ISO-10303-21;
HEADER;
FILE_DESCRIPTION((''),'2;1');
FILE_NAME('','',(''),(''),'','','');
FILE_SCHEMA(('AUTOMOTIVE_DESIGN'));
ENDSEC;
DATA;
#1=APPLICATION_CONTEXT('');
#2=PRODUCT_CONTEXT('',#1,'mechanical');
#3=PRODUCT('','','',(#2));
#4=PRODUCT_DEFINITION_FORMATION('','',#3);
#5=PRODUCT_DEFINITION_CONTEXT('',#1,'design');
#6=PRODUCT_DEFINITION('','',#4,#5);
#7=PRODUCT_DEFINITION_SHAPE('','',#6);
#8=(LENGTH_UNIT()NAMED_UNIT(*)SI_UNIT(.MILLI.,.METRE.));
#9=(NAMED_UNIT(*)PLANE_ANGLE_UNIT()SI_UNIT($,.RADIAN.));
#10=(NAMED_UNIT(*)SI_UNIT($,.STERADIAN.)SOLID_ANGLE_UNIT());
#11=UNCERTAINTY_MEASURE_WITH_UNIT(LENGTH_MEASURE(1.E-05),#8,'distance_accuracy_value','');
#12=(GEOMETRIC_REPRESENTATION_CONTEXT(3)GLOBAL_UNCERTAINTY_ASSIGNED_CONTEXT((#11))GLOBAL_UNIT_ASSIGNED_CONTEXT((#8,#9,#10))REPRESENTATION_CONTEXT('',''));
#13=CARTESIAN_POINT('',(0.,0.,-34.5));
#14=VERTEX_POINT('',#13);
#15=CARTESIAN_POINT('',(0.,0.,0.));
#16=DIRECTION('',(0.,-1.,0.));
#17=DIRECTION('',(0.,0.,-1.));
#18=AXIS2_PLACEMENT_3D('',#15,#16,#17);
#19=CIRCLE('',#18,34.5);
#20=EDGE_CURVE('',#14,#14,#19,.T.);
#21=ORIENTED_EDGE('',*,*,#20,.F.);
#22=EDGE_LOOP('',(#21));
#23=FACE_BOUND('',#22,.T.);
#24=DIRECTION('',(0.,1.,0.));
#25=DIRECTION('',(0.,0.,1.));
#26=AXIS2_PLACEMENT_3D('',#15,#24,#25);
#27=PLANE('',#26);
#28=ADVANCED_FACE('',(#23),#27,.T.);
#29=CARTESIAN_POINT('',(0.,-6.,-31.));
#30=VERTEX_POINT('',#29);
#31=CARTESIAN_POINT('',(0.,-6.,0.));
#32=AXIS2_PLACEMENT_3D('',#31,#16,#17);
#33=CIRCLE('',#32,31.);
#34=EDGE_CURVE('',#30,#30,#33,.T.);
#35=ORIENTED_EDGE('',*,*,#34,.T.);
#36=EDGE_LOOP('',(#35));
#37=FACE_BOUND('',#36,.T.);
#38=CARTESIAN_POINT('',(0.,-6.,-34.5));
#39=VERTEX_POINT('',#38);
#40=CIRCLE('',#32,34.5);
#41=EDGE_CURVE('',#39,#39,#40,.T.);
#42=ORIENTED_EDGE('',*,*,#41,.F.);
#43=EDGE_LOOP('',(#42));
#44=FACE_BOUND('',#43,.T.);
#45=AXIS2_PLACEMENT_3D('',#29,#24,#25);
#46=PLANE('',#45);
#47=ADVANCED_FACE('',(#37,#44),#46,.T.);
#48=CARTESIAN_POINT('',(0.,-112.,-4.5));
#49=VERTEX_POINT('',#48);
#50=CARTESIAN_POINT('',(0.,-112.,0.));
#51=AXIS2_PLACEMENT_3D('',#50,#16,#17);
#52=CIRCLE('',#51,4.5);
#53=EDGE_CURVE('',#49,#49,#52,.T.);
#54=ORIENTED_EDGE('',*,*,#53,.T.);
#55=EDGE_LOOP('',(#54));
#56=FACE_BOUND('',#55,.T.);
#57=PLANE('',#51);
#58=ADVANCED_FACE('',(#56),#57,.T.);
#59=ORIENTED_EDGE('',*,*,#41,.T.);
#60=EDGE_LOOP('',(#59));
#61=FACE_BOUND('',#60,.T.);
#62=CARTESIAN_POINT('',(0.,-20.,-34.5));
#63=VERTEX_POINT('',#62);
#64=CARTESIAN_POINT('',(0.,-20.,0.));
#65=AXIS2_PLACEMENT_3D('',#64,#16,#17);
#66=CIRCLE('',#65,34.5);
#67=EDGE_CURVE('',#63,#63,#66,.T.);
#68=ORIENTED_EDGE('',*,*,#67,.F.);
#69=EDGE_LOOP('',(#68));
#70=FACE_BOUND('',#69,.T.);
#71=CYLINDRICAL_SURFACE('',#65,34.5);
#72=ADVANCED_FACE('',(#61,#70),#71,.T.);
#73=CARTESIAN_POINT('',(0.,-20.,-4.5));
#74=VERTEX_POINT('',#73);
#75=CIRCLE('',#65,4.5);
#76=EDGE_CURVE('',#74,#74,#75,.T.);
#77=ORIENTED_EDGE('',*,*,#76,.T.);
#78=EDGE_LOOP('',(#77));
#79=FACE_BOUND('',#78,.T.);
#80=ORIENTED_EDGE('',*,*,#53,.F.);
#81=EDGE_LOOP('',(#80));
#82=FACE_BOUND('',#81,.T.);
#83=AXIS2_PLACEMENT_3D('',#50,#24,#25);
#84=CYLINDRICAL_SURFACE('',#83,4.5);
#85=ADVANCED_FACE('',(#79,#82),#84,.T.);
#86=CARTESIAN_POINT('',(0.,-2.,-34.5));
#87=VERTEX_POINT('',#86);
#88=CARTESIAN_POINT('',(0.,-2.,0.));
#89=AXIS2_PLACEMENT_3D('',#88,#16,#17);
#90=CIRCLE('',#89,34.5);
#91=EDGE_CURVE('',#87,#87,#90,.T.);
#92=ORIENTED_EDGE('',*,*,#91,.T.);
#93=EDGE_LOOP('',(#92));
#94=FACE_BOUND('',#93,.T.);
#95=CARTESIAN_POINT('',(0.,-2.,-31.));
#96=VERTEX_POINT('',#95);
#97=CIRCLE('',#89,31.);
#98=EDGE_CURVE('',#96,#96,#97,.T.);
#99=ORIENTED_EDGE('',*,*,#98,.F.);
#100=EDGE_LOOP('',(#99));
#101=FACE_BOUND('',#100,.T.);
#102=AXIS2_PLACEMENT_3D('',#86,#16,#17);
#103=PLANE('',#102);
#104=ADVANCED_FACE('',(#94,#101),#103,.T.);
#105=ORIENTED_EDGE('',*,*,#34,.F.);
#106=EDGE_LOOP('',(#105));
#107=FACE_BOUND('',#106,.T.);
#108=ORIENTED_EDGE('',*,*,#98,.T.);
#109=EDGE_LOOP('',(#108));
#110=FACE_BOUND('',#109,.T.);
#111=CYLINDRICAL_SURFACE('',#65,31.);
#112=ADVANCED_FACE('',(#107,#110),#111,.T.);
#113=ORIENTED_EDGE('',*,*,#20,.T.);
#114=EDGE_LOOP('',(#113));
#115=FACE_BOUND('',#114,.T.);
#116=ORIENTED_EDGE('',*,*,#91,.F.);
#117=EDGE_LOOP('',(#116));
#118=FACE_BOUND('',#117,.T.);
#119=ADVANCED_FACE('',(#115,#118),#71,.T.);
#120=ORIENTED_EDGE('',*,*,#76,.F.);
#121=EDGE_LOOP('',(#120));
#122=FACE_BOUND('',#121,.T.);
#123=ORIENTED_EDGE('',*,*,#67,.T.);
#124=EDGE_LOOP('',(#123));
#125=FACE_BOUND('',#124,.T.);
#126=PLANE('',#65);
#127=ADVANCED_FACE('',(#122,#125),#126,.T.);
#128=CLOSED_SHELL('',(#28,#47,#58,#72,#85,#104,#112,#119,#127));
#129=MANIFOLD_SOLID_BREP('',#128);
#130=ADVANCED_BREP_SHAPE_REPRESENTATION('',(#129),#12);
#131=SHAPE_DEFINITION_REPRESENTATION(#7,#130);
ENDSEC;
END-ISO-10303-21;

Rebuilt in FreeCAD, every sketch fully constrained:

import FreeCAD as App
import Part
import Sketcher

doc = App.newDocument("Part")
body = doc.addObject("PartDesign::Body", "Body")

sketch1 = doc.addObject("Sketcher::SketchObject", "Sketch")
body.addObject(sketch1)
sketch1.AttachmentSupport = (doc.YZ_Plane, [""])
sketch1.MapMode = "FlatFace"
sketch1.addGeometry(Part.LineSegment(App.Vector(0, -34.5, 0), App.Vector(0, 0, 0)), False)
sketch1.addGeometry(Part.LineSegment(App.Vector(0, 0, 0), App.Vector(-20, 0, 0)), False)
sketch1.addGeometry(Part.LineSegment(App.Vector(-20, 0, 0), App.Vector(-20, -34.5, 0)), False)
sketch1.addGeometry(Part.LineSegment(App.Vector(-20, -34.5, 0), App.Vector(-6, -34.5, 0)), False)
sketch1.addGeometry(Part.LineSegment(App.Vector(-6, -34.5, 0), App.Vector(-6, -31, 0)), False)
sketch1.addGeometry(Part.LineSegment(App.Vector(-6, -31, 0), App.Vector(-2, -31, 0)), False)
sketch1.addGeometry(Part.LineSegment(App.Vector(-2, -31, 0), App.Vector(-2, -34.5, 0)), False)
sketch1.addGeometry(Part.LineSegment(App.Vector(-2, -34.5, 0), App.Vector(0, -34.5, 0)), False)
sketch1.addConstraint(Sketcher.Constraint("Coincident", 0, 2, 1, 1))
sketch1.addConstraint(Sketcher.Constraint("Coincident", 1, 2, 2, 1))
sketch1.addConstraint(Sketcher.Constraint("Coincident", 2, 2, 3, 1))
sketch1.addConstraint(Sketcher.Constraint("Coincident", 3, 2, 4, 1))
sketch1.addConstraint(Sketcher.Constraint("Coincident", 4, 2, 5, 1))
sketch1.addConstraint(Sketcher.Constraint("Coincident", 5, 2, 6, 1))
sketch1.addConstraint(Sketcher.Constraint("Coincident", 6, 2, 7, 1))
sketch1.addConstraint(Sketcher.Constraint("Coincident", 7, 2, 0, 1))
sketch1.addConstraint(Sketcher.Constraint("Vertical", 0))
sketch1.addConstraint(Sketcher.Constraint("Horizontal", 1))
sketch1.addConstraint(Sketcher.Constraint("Vertical", 2))
sketch1.addConstraint(Sketcher.Constraint("Horizontal", 3))
sketch1.addConstraint(Sketcher.Constraint("Vertical", 4))
sketch1.addConstraint(Sketcher.Constraint("Horizontal", 5))
sketch1.addConstraint(Sketcher.Constraint("Vertical", 6))
sketch1.addConstraint(Sketcher.Constraint("Horizontal", 7))
sketch1.addConstraint(Sketcher.Constraint("Coincident", 0, 2, -1, 1))
sketch1.addConstraint(Sketcher.Constraint("Horizontal", 3, 2, 6, 2))
sketch1.addConstraint(Sketcher.Constraint("DistanceX", 1, 2, 1, 1, 20.0))
sketch1.addConstraint(Sketcher.Constraint("DistanceX", 3, 1, 3, 2, 14.0))
sketch1.addConstraint(Sketcher.Constraint("DistanceX", 5, 1, 5, 2, 4.0))
sketch1.addConstraint(Sketcher.Constraint("DistanceY", 0, 1, 0, 2, 34.5))
sketch1.addConstraint(Sketcher.Constraint("DistanceY", 4, 1, 4, 2, 3.5))
revolution = doc.addObject("PartDesign::Revolution", "Revolution")
body.addObject(revolution)
revolution.Profile = sketch1
revolution.ReferenceAxis = (sketch1, ["H_Axis"])
revolution.Angle = 360

sketch2 = doc.addObject("Sketcher::SketchObject", "Sketch001")
body.addObject(sketch2)
sketch2.AttachmentSupport = (doc.XZ_Plane, [""])
sketch2.MapMode = "FlatFace"
sketch2.AttachmentOffset = App.Placement(App.Vector(0, 0, 20), App.Rotation())
sketch2.addGeometry(Part.Circle(App.Vector(0, 0, 0), App.Vector(0, 0, 1), 4.5), False)
sketch2.addConstraint(Sketcher.Constraint("Coincident", 0, 3, -1, 1))
sketch2.addConstraint(Sketcher.Constraint("Diameter", 0, 9.0))
pad1 = doc.addObject("PartDesign::Pad", "Pad")
body.addObject(pad1)
pad1.Profile = sketch2
pad1.Length = 92

doc.recompute()
